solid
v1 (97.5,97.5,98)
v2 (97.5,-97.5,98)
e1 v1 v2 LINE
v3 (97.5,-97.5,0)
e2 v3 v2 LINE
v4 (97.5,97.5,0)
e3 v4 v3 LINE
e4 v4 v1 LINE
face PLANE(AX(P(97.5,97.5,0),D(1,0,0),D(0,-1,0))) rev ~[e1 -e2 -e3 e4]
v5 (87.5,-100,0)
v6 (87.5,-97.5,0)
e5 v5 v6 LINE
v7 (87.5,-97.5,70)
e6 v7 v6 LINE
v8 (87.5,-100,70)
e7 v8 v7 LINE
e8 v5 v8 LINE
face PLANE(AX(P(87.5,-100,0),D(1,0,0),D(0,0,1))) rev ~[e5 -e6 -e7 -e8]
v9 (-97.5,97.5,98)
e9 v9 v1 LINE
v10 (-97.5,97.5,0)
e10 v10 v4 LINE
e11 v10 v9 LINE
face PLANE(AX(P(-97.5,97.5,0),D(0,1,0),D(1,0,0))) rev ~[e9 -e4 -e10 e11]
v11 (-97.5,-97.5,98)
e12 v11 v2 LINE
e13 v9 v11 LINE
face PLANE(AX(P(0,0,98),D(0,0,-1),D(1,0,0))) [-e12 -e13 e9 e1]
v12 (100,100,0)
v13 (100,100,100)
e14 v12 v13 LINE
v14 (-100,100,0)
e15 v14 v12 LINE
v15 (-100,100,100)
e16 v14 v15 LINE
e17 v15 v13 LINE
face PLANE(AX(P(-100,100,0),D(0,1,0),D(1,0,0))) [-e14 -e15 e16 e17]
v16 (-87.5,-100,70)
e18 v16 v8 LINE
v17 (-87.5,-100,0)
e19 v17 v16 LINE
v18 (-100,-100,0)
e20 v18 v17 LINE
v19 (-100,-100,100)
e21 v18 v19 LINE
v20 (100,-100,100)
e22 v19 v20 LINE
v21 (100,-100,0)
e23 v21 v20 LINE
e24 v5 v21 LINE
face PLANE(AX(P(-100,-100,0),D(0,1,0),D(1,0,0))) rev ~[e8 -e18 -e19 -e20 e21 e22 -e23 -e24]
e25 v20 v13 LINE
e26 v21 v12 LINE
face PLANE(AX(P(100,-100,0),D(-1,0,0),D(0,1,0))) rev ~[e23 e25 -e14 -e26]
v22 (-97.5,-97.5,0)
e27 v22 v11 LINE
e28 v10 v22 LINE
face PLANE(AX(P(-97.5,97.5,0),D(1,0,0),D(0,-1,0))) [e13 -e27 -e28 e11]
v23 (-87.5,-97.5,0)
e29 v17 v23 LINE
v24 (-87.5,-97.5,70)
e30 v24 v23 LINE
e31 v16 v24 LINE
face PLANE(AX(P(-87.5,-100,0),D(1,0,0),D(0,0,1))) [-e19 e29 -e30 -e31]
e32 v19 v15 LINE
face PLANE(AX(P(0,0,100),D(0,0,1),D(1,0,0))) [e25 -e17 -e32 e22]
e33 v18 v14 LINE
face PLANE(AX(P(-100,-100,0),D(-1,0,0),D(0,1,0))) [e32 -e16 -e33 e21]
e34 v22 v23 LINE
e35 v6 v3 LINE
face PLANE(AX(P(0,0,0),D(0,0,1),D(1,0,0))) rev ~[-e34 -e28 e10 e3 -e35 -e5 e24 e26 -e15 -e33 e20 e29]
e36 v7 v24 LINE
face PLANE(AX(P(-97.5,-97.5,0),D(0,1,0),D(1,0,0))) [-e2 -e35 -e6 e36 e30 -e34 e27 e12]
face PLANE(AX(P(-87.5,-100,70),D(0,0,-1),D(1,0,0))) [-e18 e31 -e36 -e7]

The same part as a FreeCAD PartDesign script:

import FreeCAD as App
import Part
import Sketcher
Q = App.Units.Quantity


def add_polygon(sketch, points):
    """Adds a closed chain of lines whose ends are joined by coincident constraints."""
    first, n = sketch.GeometryCount, len(points)
    for a, b in zip(points, points[1:] + points[:1]):
        sketch.addGeometry(Part.LineSegment(App.Vector(*a, 0), App.Vector(*b, 0)), False)
    for i in range(n):
        sketch.addConstraint(Sketcher.Constraint("Coincident", first + i, 2, first + (i + 1) % n, 1))

doc = App.newDocument("Part")
body = doc.addObject("PartDesign::Body", "Body")

# Sketch on XY plane
sketch1 = body.newObject("Sketcher::SketchObject", "Sketch")
sketch1.AttachmentSupport = (doc.getObject("XY_Plane"), [""])
sketch1.MapMode = "FlatFace"
add_polygon(sketch1, [(-100, 100), (-100, -100), (100, -100), (100, 100)])  # lines 0-3
sketch1.addConstraint([
    Sketcher.Constraint("Vertical", 0),
    Sketcher.Constraint("Horizontal", 1),
    Sketcher.Constraint("Vertical", 2),
    Sketcher.Constraint("Horizontal", 3),
    Sketcher.Constraint("Symmetric", 0, 2, 2, 2, -1, 1),
    Sketcher.Constraint("Equal", 3, 0),
    Sketcher.Constraint("DistanceX", 1, 1, 1, 2, Q("200 mm")),
])
pad1 = body.newObject("PartDesign::Pad", "Pad")
pad1.Profile = sketch1
pad1.Length = 100

# Sketch on XY plane
sketch2 = body.newObject("Sketcher::SketchObject", "Sketch001")
sketch2.AttachmentSupport = (doc.getObject("XY_Plane"), [""])
sketch2.MapMode = "FlatFace"
add_polygon(sketch2, [(-98, -98), (-98, 98), (98, 98), (98, -98)])  # lines 0-3
sketch2.addConstraint([
    Sketcher.Constraint("Vertical", 0),
    Sketcher.Constraint("Horizontal", 1),
    Sketcher.Constraint("Vertical", 2),
    Sketcher.Constraint("Horizontal", 3),
    Sketcher.Constraint("Symmetric", 0, 2, 2, 2, -1, 1),
    Sketcher.Constraint("Equal", 3, 0),
    Sketcher.Constraint("DistanceX", 1, 1, 1, 2, Q("195 mm")),
])
pocket1 = body.newObject("PartDesign::Pocket", "Pocket")
pocket1.Profile = sketch2
pocket1.Length = 98
pocket1.Reversed = True

# Sketch on XZ plane
sketch3 = body.newObject("Sketcher::SketchObject", "Sketch002")
sketch3.AttachmentSupport = (doc.getObject("XZ_Plane"), [""])
sketch3.MapMode = "FlatFace"
sketch3.AttachmentOffset = App.Placement(App.Vector(0, 0, 100), App.Rotation())
add_polygon(sketch3, [(-88, 70), (-88, 0), (88, 0), (88, 70)])  # lines 0-3
sketch3.addConstraint([
    Sketcher.Constraint("Vertical", 0),
    Sketcher.Constraint("Horizontal", 1),
    Sketcher.Constraint("Vertical", 2),
    Sketcher.Constraint("Horizontal", 3),
    Sketcher.Constraint("Symmetric", 0, 2, 1, 2, -1, 1),
    Sketcher.Constraint("DistanceX", 1, 1, 1, 2, Q("175 mm")),
    Sketcher.Constraint("DistanceY", 0, 2, 0, 1, Q("70 mm")),
])
pocket2 = body.newObject("PartDesign::Pocket", "Pocket001")
pocket2.Profile = sketch3
pocket2.Length = 25

doc.recompute()
